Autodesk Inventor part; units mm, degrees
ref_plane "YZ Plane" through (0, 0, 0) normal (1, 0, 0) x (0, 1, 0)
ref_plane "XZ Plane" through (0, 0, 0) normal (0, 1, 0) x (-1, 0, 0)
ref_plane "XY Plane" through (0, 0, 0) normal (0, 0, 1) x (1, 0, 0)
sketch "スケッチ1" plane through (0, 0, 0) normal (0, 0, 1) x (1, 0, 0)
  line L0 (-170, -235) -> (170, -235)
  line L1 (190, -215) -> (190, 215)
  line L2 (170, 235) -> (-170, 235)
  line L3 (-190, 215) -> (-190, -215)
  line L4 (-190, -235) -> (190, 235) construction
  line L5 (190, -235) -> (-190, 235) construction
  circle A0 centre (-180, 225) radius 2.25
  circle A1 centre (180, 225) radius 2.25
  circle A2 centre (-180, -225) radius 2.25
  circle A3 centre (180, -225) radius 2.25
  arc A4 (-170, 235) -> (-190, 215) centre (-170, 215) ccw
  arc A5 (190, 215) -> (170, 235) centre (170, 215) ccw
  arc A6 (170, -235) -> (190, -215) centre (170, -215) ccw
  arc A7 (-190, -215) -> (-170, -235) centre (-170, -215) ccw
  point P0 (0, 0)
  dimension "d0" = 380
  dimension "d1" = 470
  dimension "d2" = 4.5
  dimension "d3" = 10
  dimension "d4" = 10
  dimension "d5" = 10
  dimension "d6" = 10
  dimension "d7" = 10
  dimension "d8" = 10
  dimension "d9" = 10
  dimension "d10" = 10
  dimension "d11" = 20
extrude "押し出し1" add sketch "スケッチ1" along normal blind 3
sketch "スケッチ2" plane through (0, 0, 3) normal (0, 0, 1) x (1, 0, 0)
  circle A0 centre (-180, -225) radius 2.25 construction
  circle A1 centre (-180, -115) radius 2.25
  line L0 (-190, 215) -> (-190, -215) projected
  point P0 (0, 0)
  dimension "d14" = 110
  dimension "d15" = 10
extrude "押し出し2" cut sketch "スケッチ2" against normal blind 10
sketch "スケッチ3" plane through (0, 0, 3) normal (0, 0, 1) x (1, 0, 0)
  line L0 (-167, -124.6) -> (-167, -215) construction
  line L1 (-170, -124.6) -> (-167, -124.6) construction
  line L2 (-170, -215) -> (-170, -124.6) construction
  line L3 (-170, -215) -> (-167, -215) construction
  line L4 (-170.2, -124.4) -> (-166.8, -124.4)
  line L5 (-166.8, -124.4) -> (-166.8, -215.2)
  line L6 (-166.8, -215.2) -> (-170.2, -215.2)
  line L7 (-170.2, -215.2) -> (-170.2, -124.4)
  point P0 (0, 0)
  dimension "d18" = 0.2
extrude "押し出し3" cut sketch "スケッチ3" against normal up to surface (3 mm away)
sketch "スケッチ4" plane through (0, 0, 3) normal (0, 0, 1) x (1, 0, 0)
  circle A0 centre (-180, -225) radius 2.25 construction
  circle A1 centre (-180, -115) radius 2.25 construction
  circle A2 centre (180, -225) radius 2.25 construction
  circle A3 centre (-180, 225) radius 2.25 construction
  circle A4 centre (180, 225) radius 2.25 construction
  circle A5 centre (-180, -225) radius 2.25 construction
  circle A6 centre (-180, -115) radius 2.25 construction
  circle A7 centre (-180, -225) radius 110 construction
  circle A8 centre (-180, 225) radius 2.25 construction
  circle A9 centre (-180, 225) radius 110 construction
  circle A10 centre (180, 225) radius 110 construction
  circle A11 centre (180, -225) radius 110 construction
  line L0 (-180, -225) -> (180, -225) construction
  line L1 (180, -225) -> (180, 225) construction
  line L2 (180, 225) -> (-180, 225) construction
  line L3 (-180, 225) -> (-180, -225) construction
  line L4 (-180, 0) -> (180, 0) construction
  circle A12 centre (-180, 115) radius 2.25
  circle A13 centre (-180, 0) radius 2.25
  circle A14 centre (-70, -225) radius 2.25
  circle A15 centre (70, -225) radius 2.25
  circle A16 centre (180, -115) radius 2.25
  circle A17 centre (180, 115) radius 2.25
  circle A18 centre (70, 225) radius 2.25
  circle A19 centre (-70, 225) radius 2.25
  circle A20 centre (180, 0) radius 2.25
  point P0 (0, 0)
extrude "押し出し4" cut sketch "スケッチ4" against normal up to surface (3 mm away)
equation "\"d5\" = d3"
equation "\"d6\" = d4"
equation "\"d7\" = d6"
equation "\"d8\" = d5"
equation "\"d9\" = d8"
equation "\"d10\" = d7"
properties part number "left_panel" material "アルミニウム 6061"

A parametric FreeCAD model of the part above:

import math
import FreeCAD as App
import Part
import Sketcher


def add_polygon(sketch, points):
    """Adds a closed chain of lines whose ends are joined by coincident constraints."""
    first, n = sketch.GeometryCount, len(points)
    for a, b in zip(points, points[1:] + points[:1]):
        sketch.addGeometry(Part.LineSegment(App.Vector(*a, 0), App.Vector(*b, 0)), False)
    for i in range(n):
        sketch.addConstraint(Sketcher.Constraint("Coincident", first + i, 2, first + (i + 1) % n, 1))

doc = App.newDocument("Part")
body = doc.addObject("PartDesign::Body", "Body")

# Sketch on XY plane
sketch1 = body.newObject("Sketcher::SketchObject", "Sketch")
sketch1.AttachmentSupport = (doc.getObject("XY_Plane"), [""])
sketch1.MapMode = "FlatFace"
sketch1.addGeometry([
    Part.ArcOfCircle(Part.Circle(App.Vector(-170, -215, 0), App.Vector(0, 0, 1), 20), math.radians(180), math.radians(270)),  # 0
    Part.LineSegment(App.Vector(-170, -235, 0), App.Vector(170, -235, 0)),  # 1
    Part.ArcOfCircle(Part.Circle(App.Vector(170, -215, 0), App.Vector(0, 0, 1), 20), math.radians(-90), math.radians(0)),  # 2
    Part.LineSegment(App.Vector(190, -215, 0), App.Vector(190, 215, 0)),  # 3
    Part.ArcOfCircle(Part.Circle(App.Vector(170, 215, 0), App.Vector(0, 0, 1), 20), math.radians(0), math.radians(90)),  # 4
    Part.LineSegment(App.Vector(170, 235, 0), App.Vector(-170, 235, 0)),  # 5
    Part.ArcOfCircle(Part.Circle(App.Vector(-170, 215, 0), App.Vector(0, 0, 1), 20), math.radians(90), math.radians(180)),  # 6
    Part.LineSegment(App.Vector(-190, 215, 0), App.Vector(-190, -215, 0)),  # 7
    Part.Circle(App.Vector(-180, -225, 0), App.Vector(0, 0, 1), 2.2),  # 8
    Part.Circle(App.Vector(180, -225, 0), App.Vector(0, 0, 1), 2.2),  # 9
    Part.Circle(App.Vector(-180, 225, 0), App.Vector(0, 0, 1), 2.2),  # 10
    Part.Circle(App.Vector(180, 225, 0), App.Vector(0, 0, 1), 2.2),  # 11
], False)
sketch1.addConstraint([
    Sketcher.Constraint("Tangent", 0, 2, 1, 1),
    Sketcher.Constraint("Tangent", 1, 2, 2, 1),
    Sketcher.Constraint("Tangent", 2, 2, 3, 1),
    Sketcher.Constraint("Tangent", 3, 2, 4, 1),
    Sketcher.Constraint("Tangent", 4, 2, 5, 1),
    Sketcher.Constraint("Tangent", 5, 2, 6, 1),
    Sketcher.Constraint("Tangent", 6, 2, 7, 1),
    Sketcher.Constraint("Tangent", 7, 2, 0, 1),
    Sketcher.Constraint("Horizontal", 1),
    Sketcher.Constraint("Vertical", 3),
    Sketcher.Constraint("Horizontal", 5),
    Sketcher.Constraint("Vertical", 7),
    Sketcher.Constraint("Equal", 0, 2),
    Sketcher.Constraint("Equal", 2, 4),
    Sketcher.Constraint("Equal", 4, 6),
    Sketcher.Constraint("Equal", 8, 9),
    Sketcher.Constraint("Equal", 9, 10),
    Sketcher.Constraint("Equal", 10, 11),
    Sketcher.Constraint("Symmetric", 0, 3, 4, 3, -1, 1),
    Sketcher.Constraint("Symmetric", 9, 3, 10, 3, -1, 1),
    Sketcher.Constraint("Symmetric", 8, 3, 11, 3, -1, 1),
    Sketcher.Constraint("Symmetric", 8, 3, 9, 3, -2),
    Sketcher.Constraint("Radius", 0, 20.0),
    Sketcher.Constraint("Diameter", 8, 4.5),
    Sketcher.Constraint("DistanceX", 8, 3, 0, 3, 10.0),
    Sketcher.Constraint("DistanceY", 8, 3, 0, 3, 10.0),
    Sketcher.Constraint("DistanceX", 1, 1, 1, 2, 340.0),
    Sketcher.Constraint("DistanceY", 3, 1, 3, 2, 430.0),
])
pad1 = body.newObject("PartDesign::Pad", "Pad")
pad1.Profile = sketch1
pad1.Length = 3

# Sketch on XY plane
sketch2 = body.newObject("Sketcher::SketchObject", "Sketch001")
sketch2.AttachmentSupport = (doc.getObject("XY_Plane"), [""])
sketch2.MapMode = "FlatFace"
sketch2.AttachmentOffset = App.Placement(App.Vector(0, 0, 3), App.Rotation())
sketch2.addGeometry(Part.Circle(App.Vector(-180, -115, 0), App.Vector(0, 0, 1), 2.2), False)
sketch2.addConstraint([
    Sketcher.Constraint("Diameter", 0, 4.5),
    Sketcher.Constraint("DistanceX", 0, 3, -1, 1, 180.0),
    Sketcher.Constraint("DistanceY", 0, 3, -1, 1, 115.0),
])
pocket1 = body.newObject("PartDesign::Pocket", "Pocket")
pocket1.Profile = sketch2
pocket1.Length = 10

# Sketch on XY plane
sketch3 = body.newObject("Sketcher::SketchObject", "Sketch002")
sketch3.AttachmentSupport = (doc.getObject("XY_Plane"), [""])
sketch3.MapMode = "FlatFace"
sketch3.AttachmentOffset = App.Placement(App.Vector(0, 0, 3), App.Rotation())
add_polygon(sketch3, [(-166.8, -124.4), (-170.2, -124.4), (-170.2, -215.2), (-166.8, -215.2)])  # lines 0-3
sketch3.addConstraint([
    Sketcher.Constraint("Horizontal", 0),
    Sketcher.Constraint("Vertical", 1),
    Sketcher.Constraint("Horizontal", 2),
    Sketcher.Constraint("Vertical", 3),
    Sketcher.Constraint("DistanceX", 0, 2, 0, 1, 3.4),
    Sketcher.Constraint("DistanceY", 1, 2, 1, 1, 90.8),
    Sketcher.Constraint("DistanceX", 0, 2, -1, 1, 170.2),
    Sketcher.Constraint("DistanceY", 0, 2, -1, 1, 124.4),
])
pocket2 = body.newObject("PartDesign::Pocket", "Pocket001")
pocket2.Profile = sketch3
pocket2.Length = 3

# Sketch on XY plane
sketch4 = body.newObject("Sketcher::SketchObject", "Sketch003")
sketch4.AttachmentSupport = (doc.getObject("XY_Plane"), [""])
sketch4.MapMode = "FlatFace"
sketch4.AttachmentOffset = App.Placement(App.Vector(0, 0, 3), App.Rotation())
sketch4.addGeometry([
    Part.Circle(App.Vector(-180, 115, 0), App.Vector(0, 0, 1), 2.2),  # 0
    Part.Circle(App.Vector(-180, 0, 0), App.Vector(0, 0, 1), 2.2),  # 1
    Part.Circle(App.Vector(-70, -225, 0), App.Vector(0, 0, 1), 2.2),  # 2
    Part.Circle(App.Vector(70, -225, 0), App.Vector(0, 0, 1), 2.2),  # 3
    Part.Circle(App.Vector(180, -115, 0), App.Vector(0, 0, 1), 2.2),  # 4
    Part.Circle(App.Vector(180, 115, 0), App.Vector(0, 0, 1), 2.2),  # 5
    Part.Circle(App.Vector(70, 225, 0), App.Vector(0, 0, 1), 2.2),  # 6
    Part.Circle(App.Vector(-70, 225, 0), App.Vector(0, 0, 1), 2.2),  # 7
    Part.Circle(App.Vector(180, 0, 0), App.Vector(0, 0, 1), 2.2),  # 8
], False)
sketch4.addConstraint([
    Sketcher.Constraint("Equal", 0, 1),
    Sketcher.Constraint("Equal", 1, 2),
    Sketcher.Constraint("Equal", 2, 3),
    Sketcher.Constraint("Equal", 3, 4),
    Sketcher.Constraint("Equal", 4, 5),
    Sketcher.Constraint("Equal", 5, 6),
    Sketcher.Constraint("Equal", 6, 7),
    Sketcher.Constraint("Equal", 7, 8),
    Sketcher.Constraint("Symmetric", 0, 3, 4, 3, -1, 1),
    Sketcher.Constraint("Symmetric", 2, 3, 6, 3, -1, 1),
    Sketcher.Constraint("Symmetric", 3, 3, 7, 3, -1, 1),
    Sketcher.Constraint("Symmetric", 1, 3, 8, 3, -1, 1),
    Sketcher.Constraint("Symmetric", 2, 3, 3, 3, -2),
    Sketcher.Constraint("Symmetric", 0, 3, 5, 3, -2),
    Sketcher.Constraint("PointOnObject", 1, 3, -1),
    Sketcher.Constraint("Vertical", 0, 3, 1, 3),
    Sketcher.Constraint("Diameter", 0, 4.5),
    Sketcher.Constraint("DistanceX", 0, 3, -1, 1, 180.0),
    Sketcher.Constraint("DistanceY", -1, 1, 0, 3, 115.0),
    Sketcher.Constraint("DistanceX", 2, 3, -1, 1, 70.0),
    Sketcher.Constraint("DistanceY", 2, 3, -1, 1, 225.0),
])
pocket3 = body.newObject("PartDesign::Pocket", "Pocket002")
pocket3.Profile = sketch4
pocket3.Length = 3

doc.recompute()
